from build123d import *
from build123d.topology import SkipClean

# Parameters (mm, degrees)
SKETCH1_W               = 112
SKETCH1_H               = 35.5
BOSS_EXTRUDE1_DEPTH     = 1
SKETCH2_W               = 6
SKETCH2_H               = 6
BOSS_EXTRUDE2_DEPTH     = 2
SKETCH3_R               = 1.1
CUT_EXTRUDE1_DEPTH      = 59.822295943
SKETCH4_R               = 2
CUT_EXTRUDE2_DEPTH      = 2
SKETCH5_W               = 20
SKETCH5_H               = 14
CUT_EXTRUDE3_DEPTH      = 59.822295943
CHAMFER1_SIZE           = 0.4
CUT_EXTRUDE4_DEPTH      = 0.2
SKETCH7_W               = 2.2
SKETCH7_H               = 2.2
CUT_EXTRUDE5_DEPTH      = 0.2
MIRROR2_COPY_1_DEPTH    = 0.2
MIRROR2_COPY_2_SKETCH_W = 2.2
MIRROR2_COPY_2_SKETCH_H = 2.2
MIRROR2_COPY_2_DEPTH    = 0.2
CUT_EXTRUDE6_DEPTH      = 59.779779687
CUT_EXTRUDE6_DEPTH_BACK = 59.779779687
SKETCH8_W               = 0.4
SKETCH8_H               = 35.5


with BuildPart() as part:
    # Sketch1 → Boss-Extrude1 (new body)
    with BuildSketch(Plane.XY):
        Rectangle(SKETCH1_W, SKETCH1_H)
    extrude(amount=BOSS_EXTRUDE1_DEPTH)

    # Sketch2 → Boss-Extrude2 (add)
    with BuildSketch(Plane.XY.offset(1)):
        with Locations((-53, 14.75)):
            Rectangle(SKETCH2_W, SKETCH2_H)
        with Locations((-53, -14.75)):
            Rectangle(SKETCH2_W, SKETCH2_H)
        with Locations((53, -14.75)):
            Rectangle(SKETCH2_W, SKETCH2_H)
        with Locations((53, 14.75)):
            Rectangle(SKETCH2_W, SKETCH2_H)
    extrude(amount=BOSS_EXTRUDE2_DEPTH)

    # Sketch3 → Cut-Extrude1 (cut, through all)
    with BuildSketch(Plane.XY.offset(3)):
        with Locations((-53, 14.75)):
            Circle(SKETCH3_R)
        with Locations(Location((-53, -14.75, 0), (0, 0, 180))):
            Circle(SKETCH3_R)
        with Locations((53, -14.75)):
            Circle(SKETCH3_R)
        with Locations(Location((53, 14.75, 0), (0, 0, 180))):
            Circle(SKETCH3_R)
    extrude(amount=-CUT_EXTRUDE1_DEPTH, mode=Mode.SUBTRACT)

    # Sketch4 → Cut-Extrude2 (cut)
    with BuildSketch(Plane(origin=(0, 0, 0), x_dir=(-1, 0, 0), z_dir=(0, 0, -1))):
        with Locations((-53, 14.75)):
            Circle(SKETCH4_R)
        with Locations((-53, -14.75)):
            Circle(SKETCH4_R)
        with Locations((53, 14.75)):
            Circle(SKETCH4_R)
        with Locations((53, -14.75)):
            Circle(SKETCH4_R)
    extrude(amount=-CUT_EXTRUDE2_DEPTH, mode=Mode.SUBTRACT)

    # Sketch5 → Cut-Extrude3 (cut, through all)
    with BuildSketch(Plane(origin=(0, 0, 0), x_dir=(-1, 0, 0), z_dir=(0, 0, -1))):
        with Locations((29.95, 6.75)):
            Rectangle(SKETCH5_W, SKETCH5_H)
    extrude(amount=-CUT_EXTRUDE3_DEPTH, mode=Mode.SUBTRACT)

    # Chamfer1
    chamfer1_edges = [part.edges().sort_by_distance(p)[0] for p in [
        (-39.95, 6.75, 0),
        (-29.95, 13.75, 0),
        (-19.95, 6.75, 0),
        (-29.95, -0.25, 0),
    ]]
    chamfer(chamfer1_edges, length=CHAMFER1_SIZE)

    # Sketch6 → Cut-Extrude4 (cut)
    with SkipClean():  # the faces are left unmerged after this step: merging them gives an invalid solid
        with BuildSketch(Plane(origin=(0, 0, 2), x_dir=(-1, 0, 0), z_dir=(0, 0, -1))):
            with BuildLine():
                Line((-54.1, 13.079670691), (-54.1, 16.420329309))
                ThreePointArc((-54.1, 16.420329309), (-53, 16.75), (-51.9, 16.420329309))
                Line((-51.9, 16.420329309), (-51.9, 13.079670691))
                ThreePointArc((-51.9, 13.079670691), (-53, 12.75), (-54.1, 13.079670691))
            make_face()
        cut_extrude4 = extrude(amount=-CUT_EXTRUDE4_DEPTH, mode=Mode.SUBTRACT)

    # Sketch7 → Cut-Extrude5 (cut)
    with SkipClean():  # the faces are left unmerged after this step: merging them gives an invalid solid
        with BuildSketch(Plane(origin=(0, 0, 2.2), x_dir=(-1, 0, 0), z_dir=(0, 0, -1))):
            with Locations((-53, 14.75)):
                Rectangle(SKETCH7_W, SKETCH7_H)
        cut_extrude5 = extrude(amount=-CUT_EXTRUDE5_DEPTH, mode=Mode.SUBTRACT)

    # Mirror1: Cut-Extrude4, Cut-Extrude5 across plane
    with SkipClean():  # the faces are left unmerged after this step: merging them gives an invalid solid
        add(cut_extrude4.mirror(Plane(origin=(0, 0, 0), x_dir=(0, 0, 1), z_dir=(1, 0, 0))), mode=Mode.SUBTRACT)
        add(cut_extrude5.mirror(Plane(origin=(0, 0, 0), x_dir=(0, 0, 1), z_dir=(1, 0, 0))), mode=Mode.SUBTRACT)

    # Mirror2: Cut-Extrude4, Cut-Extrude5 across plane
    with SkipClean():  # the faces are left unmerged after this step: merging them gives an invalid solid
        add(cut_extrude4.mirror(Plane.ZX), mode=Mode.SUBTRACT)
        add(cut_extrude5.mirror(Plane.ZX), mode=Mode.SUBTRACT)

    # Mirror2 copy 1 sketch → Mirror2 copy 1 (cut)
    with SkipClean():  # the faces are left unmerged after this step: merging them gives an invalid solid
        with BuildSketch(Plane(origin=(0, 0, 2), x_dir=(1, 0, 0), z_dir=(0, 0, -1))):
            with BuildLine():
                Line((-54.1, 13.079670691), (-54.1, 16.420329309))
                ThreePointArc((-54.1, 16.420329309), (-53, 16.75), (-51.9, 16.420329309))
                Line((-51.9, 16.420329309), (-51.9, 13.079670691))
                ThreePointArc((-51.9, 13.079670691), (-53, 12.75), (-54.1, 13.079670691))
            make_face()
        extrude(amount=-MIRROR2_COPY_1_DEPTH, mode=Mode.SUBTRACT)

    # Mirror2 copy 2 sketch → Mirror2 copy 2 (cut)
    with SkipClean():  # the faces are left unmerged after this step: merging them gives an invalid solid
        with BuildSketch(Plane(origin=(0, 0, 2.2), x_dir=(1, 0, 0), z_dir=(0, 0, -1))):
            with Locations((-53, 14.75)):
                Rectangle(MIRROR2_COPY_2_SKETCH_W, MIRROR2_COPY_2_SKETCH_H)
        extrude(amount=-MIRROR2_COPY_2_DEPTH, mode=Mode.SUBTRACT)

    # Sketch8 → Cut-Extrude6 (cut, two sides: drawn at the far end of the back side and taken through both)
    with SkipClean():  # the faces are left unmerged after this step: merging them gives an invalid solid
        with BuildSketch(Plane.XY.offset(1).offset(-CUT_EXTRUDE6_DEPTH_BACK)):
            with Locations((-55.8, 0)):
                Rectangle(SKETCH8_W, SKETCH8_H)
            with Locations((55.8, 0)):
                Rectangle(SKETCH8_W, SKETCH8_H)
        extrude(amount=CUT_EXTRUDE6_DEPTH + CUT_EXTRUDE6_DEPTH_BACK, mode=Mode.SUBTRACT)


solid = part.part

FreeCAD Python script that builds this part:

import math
import FreeCAD as App
import Part
import Sketcher

V = App.Vector
Q = App.Units.Quantity


def edges_at(feature, points):
    """Names of the edges that pass closest to the given points."""
    edges = feature.Shape.Edges
    near = lambda p: min(range(len(edges)), key=lambda i: edges[i].distToShape(Part.Vertex(*p))[0])
    return sorted({f"Edge{near(p) + 1}" for p in points})


def add_polygon(sketch, points):
    """Adds a closed chain of lines whose ends are joined by coincident constraints."""
    first, n = sketch.GeometryCount, len(points)
    for a, b in zip(points, points[1:] + points[:1]):
        sketch.addGeometry(Part.LineSegment(App.Vector(*a, 0), App.Vector(*b, 0)), False)
    for i in range(n):
        sketch.addConstraint(Sketcher.Constraint("Coincident", first + i, 2, first + (i + 1) % n, 1))

doc = App.newDocument("Part")
body = doc.addObject("PartDesign::Body", "Body")

sketch1 = doc.addObject("Sketcher::SketchObject", "Sketch")
body.addObject(sketch1)
sketch1.AttachmentSupport = (doc.XY_Plane, [""])
sketch1.MapMode = "FlatFace"
add_polygon(sketch1, [(-56, 17.75), (-56, -17.75), (56, -17.75), (56, 17.75)])
sketch1.addConstraint([
    Sketcher.Constraint("Vertical", 0),
    Sketcher.Constraint("Horizontal", 1),
    Sketcher.Constraint("Vertical", 2),
    Sketcher.Constraint("Horizontal", 3),
    Sketcher.Constraint("Symmetric", 0, 2, 2, 2, -1, 1),
    Sketcher.Constraint("DistanceX", 1, 1, 1, 2, Q("112 mm")),
    Sketcher.Constraint("DistanceY", 0, 2, 0, 1, Q("35.5 mm")),
])
pad1 = doc.addObject("PartDesign::Pad", "Pad")
body.addObject(pad1)
pad1.Profile = sketch1
pad1.Length = 1

sketch2 = doc.addObject("Sketcher::SketchObject", "Sketch001")
body.addObject(sketch2)
sketch2.AttachmentSupport = (doc.XY_Plane, [""])
sketch2.MapMode = "FlatFace"
sketch2.AttachmentOffset = App.Placement(V(0, 0, 1), App.Rotation())
add_polygon(sketch2, [(-56, 17.75), (-56, 11.75), (-50, 11.75), (-50, 17.75)])
add_polygon(sketch2, [(-56, -11.75), (-56, -17.75), (-50, -17.75), (-50, -11.75)])
add_polygon(sketch2, [(50, -11.75), (50, -17.75), (56, -17.75), (56, -11.75)])
add_polygon(sketch2, [(50, 17.75), (50, 11.75), (56, 11.75), (56, 17.75)])
sketch2.addConstraint([
    Sketcher.Constraint("Vertical", 0),
    Sketcher.Constraint("Horizontal", 1),
    Sketcher.Constraint("Vertical", 2),
    Sketcher.Constraint("Horizontal", 3),
    Sketcher.Constraint("Vertical", 4),
    Sketcher.Constraint("Horizontal", 5),
    Sketcher.Constraint("Vertical", 6),
    Sketcher.Constraint("Horizontal", 7),
    Sketcher.Constraint("Vertical", 8),
    Sketcher.Constraint("Horizontal", 9),
    Sketcher.Constraint("Vertical", 10),
    Sketcher.Constraint("Horizontal", 11),
    Sketcher.Constraint("Vertical", 12),
    Sketcher.Constraint("Horizontal", 13),
    Sketcher.Constraint("Vertical", 14),
    Sketcher.Constraint("Horizontal", 15),
    Sketcher.Constraint("Symmetric", 2, 2, 8, 2, -1, 1),
    Sketcher.Constraint("Symmetric", 0, 2, 10, 2, -1, 1),
    Sketcher.Constraint("Symmetric", 6, 2, 12, 2, -1, 1),
    Sketcher.Constraint("Symmetric", 4, 2, 14, 2, -1, 1),
    Sketcher.Constraint("Symmetric", 5, 2, 8, 2, -2),
    Sketcher.Constraint("Symmetric", 7, 2, 10, 2, -2),
    Sketcher.Constraint("Equal", 15, 0),
    Sketcher.Constraint("DistanceX", 1, 1, 1, 2, Q("6 mm")),
    Sketcher.Constraint("DistanceX", 0, 2, -1, 1, Q("56 mm")),
    Sketcher.Constraint("DistanceY", 4, 2, 0, 2, Q("29.5 mm")),
])
pad2 = doc.addObject("PartDesign::Pad", "Pad001")
body.addObject(pad2)
pad2.Profile = sketch2
pad2.Length = 2

sketch3 = doc.addObject("Sketcher::SketchObject", "Sketch002")
body.addObject(sketch3)
sketch3.AttachmentSupport = (doc.XY_Plane, [""])
sketch3.MapMode = "FlatFace"
sketch3.AttachmentOffset = App.Placement(V(0, 0, 3), App.Rotation())
sketch3.addGeometry([
    Part.Circle(V(-53, 14.75, 0), V(0, 0, 1), 1.1),
    Part.Circle(V(-53, -14.75, 0), V(0, 0, 1), 1.1),
    Part.Circle(V(53, -14.75, 0), V(0, 0, 1), 1.1),
    Part.Circle(V(53, 14.75, 0), V(0, 0, 1), 1.1),
], False)
sketch3.addConstraint([
    Sketcher.Constraint("Equal", 0, 1),
    Sketcher.Constraint("Equal", 1, 2),
    Sketcher.Constraint("Equal", 2, 3),
    Sketcher.Constraint("Symmetric", 0, 3, 2, 3, -1, 1),
    Sketcher.Constraint("Symmetric", 1, 3, 3, 3, -1, 1),
    Sketcher.Constraint("Symmetric", 1, 3, 2, 3, -2),
    Sketcher.Constraint("Diameter", 0, Q("2.2 mm")),
    Sketcher.Constraint("DistanceX", 0, 3, -1, 1, Q("53 mm")),
    Sketcher.Constraint("DistanceY", 1, 3, 0, 3, Q("29.5 mm")),
])
pocket1 = doc.addObject("PartDesign::Pocket", "Pocket")
body.addObject(pocket1)
pocket1.Profile = sketch3
pocket1.Type = "ThroughAll"

sketch4 = doc.addObject("Sketcher::SketchObject", "Sketch003")
body.addObject(sketch4)
sketch4.AttachmentSupport = (doc.XY_Plane, [""])
sketch4.MapMode = "FlatFace"
sketch4.addGeometry([
    Part.Circle(V(53, 14.75, 0), V(0, 0, 1), 2),
    Part.Circle(V(53, -14.75, 0), V(0, 0, 1), 2),
    Part.Circle(V(-53, 14.75, 0), V(0, 0, 1), 2),
    Part.Circle(V(-53, -14.75, 0), V(0, 0, 1), 2),
], False)
sketch4.addConstraint([
    Sketcher.Constraint("Equal", 0, 1),
    Sketcher.Constraint("Equal", 1, 2),
    Sketcher.Constraint("Equal", 2, 3),
    Sketcher.Constraint("Symmetric", 1, 3, 2, 3, -1, 1),
    Sketcher.Constraint("Symmetric", 0, 3, 3, 3, -1, 1),
    Sketcher.Constraint("Symmetric", 0, 3, 2, 3, -2),
    Sketcher.Constraint("Diameter", 0, Q("4 mm")),
    Sketcher.Constraint("DistanceX", -1, 1, 0, 3, Q("53 mm")),
    Sketcher.Constraint("DistanceY", 1, 3, 0, 3, Q("29.5 mm")),
])
pocket2 = doc.addObject("PartDesign::Pocket", "Pocket001")
body.addObject(pocket2)
pocket2.Profile = sketch4
pocket2.Length = 2
pocket2.Reversed = True

sketch5 = doc.addObject("Sketcher::SketchObject", "Sketch004")
body.addObject(sketch5)
sketch5.AttachmentSupport = (doc.XY_Plane, [""])
sketch5.MapMode = "FlatFace"
add_polygon(sketch5, [(-19.95, 13.75), (-19.95, -0.25), (-39.95, -0.25), (-39.95, 13.75)])
sketch5.addConstraint([
    Sketcher.Constraint("Vertical", 0),
    Sketcher.Constraint("Horizontal", 1),
    Sketcher.Constraint("Vertical", 2),
    Sketcher.Constraint("Horizontal", 3),
    Sketcher.Constraint("DistanceX", 1, 2, 1, 1, Q("20 mm")),
    Sketcher.Constraint("DistanceY", 0, 2, 0, 1, Q("14 mm")),
    Sketcher.Constraint("DistanceX", 0, 2, -1, 1, Q("19.95 mm")),
    Sketcher.Constraint("DistanceY", 0, 2, -1, 1, Q("0.25 mm")),
])
pocket3 = doc.addObject("PartDesign::Pocket", "Pocket002")
body.addObject(pocket3)
pocket3.Profile = sketch5
pocket3.Type = "ThroughAll"
pocket3.Reversed = True
doc.recompute()

chamfer = doc.addObject("PartDesign::Chamfer", "Chamfer")
body.addObject(chamfer)
chamfer.Base = (pocket3, edges_at(pocket3, [
    (-39.95, 6.75, 0),
    (-29.95, 13.75, 0),
    (-19.95, 6.75, 0),
    (-29.95, -0.25, 0),
]))
chamfer.Size = 0.4

sketch6 = doc.addObject("Sketcher::SketchObject", "Sketch005")
body.addObject(sketch6)
sketch6.AttachmentSupport = (doc.XY_Plane, [""])
sketch6.MapMode = "FlatFace"
sketch6.AttachmentOffset = App.Placement(V(0, 0, 2), App.Rotation())
sketch6.addGeometry([
    Part.LineSegment(V(54.1, 16.420329, 0), V(54.1, 13.079671, 0)),
    Part.ArcOfCircle(Part.Circle(V(53, 14.75, 0), V(0, 0, 1), 2), math.radians(-123.367013), math.radians(-56.632987)),
    Part.LineSegment(V(51.9, 13.079671, 0), V(51.9, 16.420329, 0)),
    Part.ArcOfCircle(Part.Circle(V(53, 14.75, 0), V(0, 0, 1), 2), math.radians(56.632987), math.radians(123.367013)),
], False)
sketch6.addConstraint([
    Sketcher.Constraint("Coincident", 0, 2, 1, 2),
    Sketcher.Constraint("Coincident", 1, 1, 2, 1),
    Sketcher.Constraint("Coincident", 2, 2, 3, 2),
    Sketcher.Constraint("Coincident", 3, 1, 0, 1),
    Sketcher.Constraint("Vertical", 0),
    Sketcher.Constraint("Vertical", 2),
    Sketcher.Constraint("Coincident", 3, 3, 1, 3),
    Sketcher.Constraint("Equal", 1, 3),
    Sketcher.Constraint("Horizontal", 0, 2, 1, 1),
    Sketcher.Constraint("Radius", 1, Q("2 mm")),
    Sketcher.Constraint("DistanceX", -1, 1, 1, 3, Q("53 mm")),
    Sketcher.Constraint("DistanceX", -1, 1, 0, 2, Q("54.1 mm")),
    Sketcher.Constraint("DistanceY", -1, 1, 1, 3, Q("14.75 mm")),
])
pocket4 = doc.addObject("PartDesign::Pocket", "Pocket003")
body.addObject(pocket4)
pocket4.Profile = sketch6
pocket4.Length = 0.2
pocket4.Reversed = True

sketch7 = doc.addObject("Sketcher::SketchObject", "Sketch006")
body.addObject(sketch7)
sketch7.AttachmentSupport = (doc.XY_Plane, [""])
sketch7.MapMode = "FlatFace"
sketch7.AttachmentOffset = App.Placement(V(0, 0, 2.2), App.Rotation())
add_polygon(sketch7, [(54.1, 15.85), (54.1, 13.65), (51.9, 13.65), (51.9, 15.85)])
sketch7.addConstraint([
    Sketcher.Constraint("Vertical", 0),
    Sketcher.Constraint("Horizontal", 1),
    Sketcher.Constraint("Vertical", 2),
    Sketcher.Constraint("Horizontal", 3),
    Sketcher.Constraint("Equal", 3, 0),
    Sketcher.Constraint("DistanceX", 1, 2, 1, 1, Q("2.2 mm")),
    Sketcher.Constraint("DistanceX", -1, 1, 0, 2, Q("54.1 mm")),
    Sketcher.Constraint("DistanceY", -1, 1, 0, 2, Q("13.65 mm")),
])
pocket5 = doc.addObject("PartDesign::Pocket", "Pocket004")
body.addObject(pocket5)
pocket5.Profile = sketch7
pocket5.Length = 0.2
pocket5.Reversed = True
doc.recompute()

mirrored = doc.addObject("PartDesign::Mirrored", "Mirrored")
body.addObject(mirrored)
mirrored.Originals = [pocket4, pocket5]
mirrored.MirrorPlane = (doc.YZ_Plane, [""])
body.Tip = mirrored
doc.recompute()

mirrored2 = doc.addObject("PartDesign::Mirrored", "Mirrored001")
body.addObject(mirrored2)
mirrored2.Originals = [pocket4, pocket5]
mirrored2.MirrorPlane = (doc.XZ_Plane, [""])
body.Tip = mirrored2

sketch8 = doc.addObject("Sketcher::SketchObject", "Sketch007")
body.addObject(sketch8)
sketch8.AttachmentSupport = (doc.XY_Plane, [""])
sketch8.MapMode = "FlatFace"
sketch8.AttachmentOffset = App.Placement(V(0, 0, 2), App.Rotation())
sketch8.addGeometry([
    Part.LineSegment(V(-54.1, -16.420329, 0), V(-54.1, -13.079671, 0)),
    Part.ArcOfCircle(Part.Circle(V(-53, -14.75, 0), V(0, 0, 1), 2), math.radians(56.632987), math.radians(123.367013)),
    Part.LineSegment(V(-51.9, -13.079671, 0), V(-51.9, -16.420329, 0)),
    Part.ArcOfCircle(Part.Circle(V(-53, -14.75, 0), V(0, 0, 1), 2), math.radians(-123.367013), math.radians(-56.632987)),
], False)
sketch8.addConstraint([
    Sketcher.Constraint("Coincident", 0, 2, 1, 2),
    Sketcher.Constraint("Coincident", 1, 1, 2, 1),
    Sketcher.Constraint("Coincident", 2, 2, 3, 2),
    Sketcher.Constraint("Coincident", 3, 1, 0, 1),
    Sketcher.Constraint("Vertical", 0),
    Sketcher.Constraint("Vertical", 2),
    Sketcher.Constraint("Coincident", 3, 3, 1, 3),
    Sketcher.Constraint("Equal", 1, 3),
    Sketcher.Constraint("Horizontal", 0, 2, 1, 1),
    Sketcher.Constraint("Radius", 1, Q("2 mm")),
    Sketcher.Constraint("DistanceX", 1, 3, -1, 1, Q("53 mm")),
    Sketcher.Constraint("DistanceX", 0, 2, -1, 1, Q("54.1 mm")),
    Sketcher.Constraint("DistanceY", 1, 3, -1, 1, Q("14.75 mm")),
])
pocket6 = doc.addObject("PartDesign::Pocket", "Pocket005")
body.addObject(pocket6)
pocket6.Profile = sketch8
pocket6.Length = 0.2
pocket6.Reversed = True

sketch9 = doc.addObject("Sketcher::SketchObject", "Sketch008")
body.addObject(sketch9)
sketch9.AttachmentSupport = (doc.XY_Plane, [""])
sketch9.MapMode = "FlatFace"
sketch9.AttachmentOffset = App.Placement(V(0, 0, 2.2), App.Rotation())
add_polygon(sketch9, [(-54.1, -15.85), (-54.1, -13.65), (-51.9, -13.65), (-51.9, -15.85)])
sketch9.addConstraint([
    Sketcher.Constraint("Vertical", 0),
    Sketcher.Constraint("Horizontal", 1),
    Sketcher.Constraint("Vertical", 2),
    Sketcher.Constraint("Horizontal", 3),
    Sketcher.Constraint("Equal", 3, 0),
    Sketcher.Constraint("DistanceX", 1, 1, 1, 2, Q("2.2 mm")),
    Sketcher.Constraint("DistanceX", 0, 2, -1, 1, Q("54.1 mm")),
    Sketcher.Constraint("DistanceY", 0, 2, -1, 1, Q("13.65 mm")),
])
pocket7 = doc.addObject("PartDesign::Pocket", "Pocket006")
body.addObject(pocket7)
pocket7.Profile = sketch9
pocket7.Length = 0.2
pocket7.Reversed = True

sketch10 = doc.addObject("Sketcher::SketchObject", "Sketch009")
body.addObject(sketch10)
sketch10.AttachmentSupport = (doc.XY_Plane, [""])
sketch10.MapMode = "FlatFace"
sketch10.AttachmentOffset = App.Placement(V(0, 0, 1), App.Rotation())
add_polygon(sketch10, [(-56, 17.75), (-56, -17.75), (-55.6, -17.75), (-55.6, 17.75)])
add_polygon(sketch10, [(55.6, 17.75), (55.6, -17.75), (56, -17.75), (56, 17.75)])
sketch10.addConstraint([
    Sketcher.Constraint("Vertical", 0),
    Sketcher.Constraint("Horizontal", 1),
    Sketcher.Constraint("Vertical", 2),
    Sketcher.Constraint("Horizontal", 3),
    Sketcher.Constraint("Vertical", 4),
    Sketcher.Constraint("Horizontal", 5),
    Sketcher.Constraint("Vertical", 6),
    Sketcher.Constraint("Horizontal", 7),
    Sketcher.Constraint("Symmetric", 2, 2, 4, 2, -1, 1),
    Sketcher.Constraint("Symmetric", 0, 2, 6, 2, -1, 1),
    Sketcher.Constraint("Horizontal", 1, 2, 4, 2),
    Sketcher.Constraint("DistanceX", 1, 1, 1, 2, Q("0.4 mm")),
    Sketcher.Constraint("DistanceY", 0, 2, 0, 1, Q("35.5 mm")),
    Sketcher.Constraint("DistanceX", 0, 2, -1, 1, Q("56 mm")),
])
pocket8 = doc.addObject("PartDesign::Pocket", "Pocket007")
body.addObject(pocket8)
pocket8.Profile = sketch10
pocket8.Type = "ThroughAll"
pocket8.Midplane = True

doc.recompute()
